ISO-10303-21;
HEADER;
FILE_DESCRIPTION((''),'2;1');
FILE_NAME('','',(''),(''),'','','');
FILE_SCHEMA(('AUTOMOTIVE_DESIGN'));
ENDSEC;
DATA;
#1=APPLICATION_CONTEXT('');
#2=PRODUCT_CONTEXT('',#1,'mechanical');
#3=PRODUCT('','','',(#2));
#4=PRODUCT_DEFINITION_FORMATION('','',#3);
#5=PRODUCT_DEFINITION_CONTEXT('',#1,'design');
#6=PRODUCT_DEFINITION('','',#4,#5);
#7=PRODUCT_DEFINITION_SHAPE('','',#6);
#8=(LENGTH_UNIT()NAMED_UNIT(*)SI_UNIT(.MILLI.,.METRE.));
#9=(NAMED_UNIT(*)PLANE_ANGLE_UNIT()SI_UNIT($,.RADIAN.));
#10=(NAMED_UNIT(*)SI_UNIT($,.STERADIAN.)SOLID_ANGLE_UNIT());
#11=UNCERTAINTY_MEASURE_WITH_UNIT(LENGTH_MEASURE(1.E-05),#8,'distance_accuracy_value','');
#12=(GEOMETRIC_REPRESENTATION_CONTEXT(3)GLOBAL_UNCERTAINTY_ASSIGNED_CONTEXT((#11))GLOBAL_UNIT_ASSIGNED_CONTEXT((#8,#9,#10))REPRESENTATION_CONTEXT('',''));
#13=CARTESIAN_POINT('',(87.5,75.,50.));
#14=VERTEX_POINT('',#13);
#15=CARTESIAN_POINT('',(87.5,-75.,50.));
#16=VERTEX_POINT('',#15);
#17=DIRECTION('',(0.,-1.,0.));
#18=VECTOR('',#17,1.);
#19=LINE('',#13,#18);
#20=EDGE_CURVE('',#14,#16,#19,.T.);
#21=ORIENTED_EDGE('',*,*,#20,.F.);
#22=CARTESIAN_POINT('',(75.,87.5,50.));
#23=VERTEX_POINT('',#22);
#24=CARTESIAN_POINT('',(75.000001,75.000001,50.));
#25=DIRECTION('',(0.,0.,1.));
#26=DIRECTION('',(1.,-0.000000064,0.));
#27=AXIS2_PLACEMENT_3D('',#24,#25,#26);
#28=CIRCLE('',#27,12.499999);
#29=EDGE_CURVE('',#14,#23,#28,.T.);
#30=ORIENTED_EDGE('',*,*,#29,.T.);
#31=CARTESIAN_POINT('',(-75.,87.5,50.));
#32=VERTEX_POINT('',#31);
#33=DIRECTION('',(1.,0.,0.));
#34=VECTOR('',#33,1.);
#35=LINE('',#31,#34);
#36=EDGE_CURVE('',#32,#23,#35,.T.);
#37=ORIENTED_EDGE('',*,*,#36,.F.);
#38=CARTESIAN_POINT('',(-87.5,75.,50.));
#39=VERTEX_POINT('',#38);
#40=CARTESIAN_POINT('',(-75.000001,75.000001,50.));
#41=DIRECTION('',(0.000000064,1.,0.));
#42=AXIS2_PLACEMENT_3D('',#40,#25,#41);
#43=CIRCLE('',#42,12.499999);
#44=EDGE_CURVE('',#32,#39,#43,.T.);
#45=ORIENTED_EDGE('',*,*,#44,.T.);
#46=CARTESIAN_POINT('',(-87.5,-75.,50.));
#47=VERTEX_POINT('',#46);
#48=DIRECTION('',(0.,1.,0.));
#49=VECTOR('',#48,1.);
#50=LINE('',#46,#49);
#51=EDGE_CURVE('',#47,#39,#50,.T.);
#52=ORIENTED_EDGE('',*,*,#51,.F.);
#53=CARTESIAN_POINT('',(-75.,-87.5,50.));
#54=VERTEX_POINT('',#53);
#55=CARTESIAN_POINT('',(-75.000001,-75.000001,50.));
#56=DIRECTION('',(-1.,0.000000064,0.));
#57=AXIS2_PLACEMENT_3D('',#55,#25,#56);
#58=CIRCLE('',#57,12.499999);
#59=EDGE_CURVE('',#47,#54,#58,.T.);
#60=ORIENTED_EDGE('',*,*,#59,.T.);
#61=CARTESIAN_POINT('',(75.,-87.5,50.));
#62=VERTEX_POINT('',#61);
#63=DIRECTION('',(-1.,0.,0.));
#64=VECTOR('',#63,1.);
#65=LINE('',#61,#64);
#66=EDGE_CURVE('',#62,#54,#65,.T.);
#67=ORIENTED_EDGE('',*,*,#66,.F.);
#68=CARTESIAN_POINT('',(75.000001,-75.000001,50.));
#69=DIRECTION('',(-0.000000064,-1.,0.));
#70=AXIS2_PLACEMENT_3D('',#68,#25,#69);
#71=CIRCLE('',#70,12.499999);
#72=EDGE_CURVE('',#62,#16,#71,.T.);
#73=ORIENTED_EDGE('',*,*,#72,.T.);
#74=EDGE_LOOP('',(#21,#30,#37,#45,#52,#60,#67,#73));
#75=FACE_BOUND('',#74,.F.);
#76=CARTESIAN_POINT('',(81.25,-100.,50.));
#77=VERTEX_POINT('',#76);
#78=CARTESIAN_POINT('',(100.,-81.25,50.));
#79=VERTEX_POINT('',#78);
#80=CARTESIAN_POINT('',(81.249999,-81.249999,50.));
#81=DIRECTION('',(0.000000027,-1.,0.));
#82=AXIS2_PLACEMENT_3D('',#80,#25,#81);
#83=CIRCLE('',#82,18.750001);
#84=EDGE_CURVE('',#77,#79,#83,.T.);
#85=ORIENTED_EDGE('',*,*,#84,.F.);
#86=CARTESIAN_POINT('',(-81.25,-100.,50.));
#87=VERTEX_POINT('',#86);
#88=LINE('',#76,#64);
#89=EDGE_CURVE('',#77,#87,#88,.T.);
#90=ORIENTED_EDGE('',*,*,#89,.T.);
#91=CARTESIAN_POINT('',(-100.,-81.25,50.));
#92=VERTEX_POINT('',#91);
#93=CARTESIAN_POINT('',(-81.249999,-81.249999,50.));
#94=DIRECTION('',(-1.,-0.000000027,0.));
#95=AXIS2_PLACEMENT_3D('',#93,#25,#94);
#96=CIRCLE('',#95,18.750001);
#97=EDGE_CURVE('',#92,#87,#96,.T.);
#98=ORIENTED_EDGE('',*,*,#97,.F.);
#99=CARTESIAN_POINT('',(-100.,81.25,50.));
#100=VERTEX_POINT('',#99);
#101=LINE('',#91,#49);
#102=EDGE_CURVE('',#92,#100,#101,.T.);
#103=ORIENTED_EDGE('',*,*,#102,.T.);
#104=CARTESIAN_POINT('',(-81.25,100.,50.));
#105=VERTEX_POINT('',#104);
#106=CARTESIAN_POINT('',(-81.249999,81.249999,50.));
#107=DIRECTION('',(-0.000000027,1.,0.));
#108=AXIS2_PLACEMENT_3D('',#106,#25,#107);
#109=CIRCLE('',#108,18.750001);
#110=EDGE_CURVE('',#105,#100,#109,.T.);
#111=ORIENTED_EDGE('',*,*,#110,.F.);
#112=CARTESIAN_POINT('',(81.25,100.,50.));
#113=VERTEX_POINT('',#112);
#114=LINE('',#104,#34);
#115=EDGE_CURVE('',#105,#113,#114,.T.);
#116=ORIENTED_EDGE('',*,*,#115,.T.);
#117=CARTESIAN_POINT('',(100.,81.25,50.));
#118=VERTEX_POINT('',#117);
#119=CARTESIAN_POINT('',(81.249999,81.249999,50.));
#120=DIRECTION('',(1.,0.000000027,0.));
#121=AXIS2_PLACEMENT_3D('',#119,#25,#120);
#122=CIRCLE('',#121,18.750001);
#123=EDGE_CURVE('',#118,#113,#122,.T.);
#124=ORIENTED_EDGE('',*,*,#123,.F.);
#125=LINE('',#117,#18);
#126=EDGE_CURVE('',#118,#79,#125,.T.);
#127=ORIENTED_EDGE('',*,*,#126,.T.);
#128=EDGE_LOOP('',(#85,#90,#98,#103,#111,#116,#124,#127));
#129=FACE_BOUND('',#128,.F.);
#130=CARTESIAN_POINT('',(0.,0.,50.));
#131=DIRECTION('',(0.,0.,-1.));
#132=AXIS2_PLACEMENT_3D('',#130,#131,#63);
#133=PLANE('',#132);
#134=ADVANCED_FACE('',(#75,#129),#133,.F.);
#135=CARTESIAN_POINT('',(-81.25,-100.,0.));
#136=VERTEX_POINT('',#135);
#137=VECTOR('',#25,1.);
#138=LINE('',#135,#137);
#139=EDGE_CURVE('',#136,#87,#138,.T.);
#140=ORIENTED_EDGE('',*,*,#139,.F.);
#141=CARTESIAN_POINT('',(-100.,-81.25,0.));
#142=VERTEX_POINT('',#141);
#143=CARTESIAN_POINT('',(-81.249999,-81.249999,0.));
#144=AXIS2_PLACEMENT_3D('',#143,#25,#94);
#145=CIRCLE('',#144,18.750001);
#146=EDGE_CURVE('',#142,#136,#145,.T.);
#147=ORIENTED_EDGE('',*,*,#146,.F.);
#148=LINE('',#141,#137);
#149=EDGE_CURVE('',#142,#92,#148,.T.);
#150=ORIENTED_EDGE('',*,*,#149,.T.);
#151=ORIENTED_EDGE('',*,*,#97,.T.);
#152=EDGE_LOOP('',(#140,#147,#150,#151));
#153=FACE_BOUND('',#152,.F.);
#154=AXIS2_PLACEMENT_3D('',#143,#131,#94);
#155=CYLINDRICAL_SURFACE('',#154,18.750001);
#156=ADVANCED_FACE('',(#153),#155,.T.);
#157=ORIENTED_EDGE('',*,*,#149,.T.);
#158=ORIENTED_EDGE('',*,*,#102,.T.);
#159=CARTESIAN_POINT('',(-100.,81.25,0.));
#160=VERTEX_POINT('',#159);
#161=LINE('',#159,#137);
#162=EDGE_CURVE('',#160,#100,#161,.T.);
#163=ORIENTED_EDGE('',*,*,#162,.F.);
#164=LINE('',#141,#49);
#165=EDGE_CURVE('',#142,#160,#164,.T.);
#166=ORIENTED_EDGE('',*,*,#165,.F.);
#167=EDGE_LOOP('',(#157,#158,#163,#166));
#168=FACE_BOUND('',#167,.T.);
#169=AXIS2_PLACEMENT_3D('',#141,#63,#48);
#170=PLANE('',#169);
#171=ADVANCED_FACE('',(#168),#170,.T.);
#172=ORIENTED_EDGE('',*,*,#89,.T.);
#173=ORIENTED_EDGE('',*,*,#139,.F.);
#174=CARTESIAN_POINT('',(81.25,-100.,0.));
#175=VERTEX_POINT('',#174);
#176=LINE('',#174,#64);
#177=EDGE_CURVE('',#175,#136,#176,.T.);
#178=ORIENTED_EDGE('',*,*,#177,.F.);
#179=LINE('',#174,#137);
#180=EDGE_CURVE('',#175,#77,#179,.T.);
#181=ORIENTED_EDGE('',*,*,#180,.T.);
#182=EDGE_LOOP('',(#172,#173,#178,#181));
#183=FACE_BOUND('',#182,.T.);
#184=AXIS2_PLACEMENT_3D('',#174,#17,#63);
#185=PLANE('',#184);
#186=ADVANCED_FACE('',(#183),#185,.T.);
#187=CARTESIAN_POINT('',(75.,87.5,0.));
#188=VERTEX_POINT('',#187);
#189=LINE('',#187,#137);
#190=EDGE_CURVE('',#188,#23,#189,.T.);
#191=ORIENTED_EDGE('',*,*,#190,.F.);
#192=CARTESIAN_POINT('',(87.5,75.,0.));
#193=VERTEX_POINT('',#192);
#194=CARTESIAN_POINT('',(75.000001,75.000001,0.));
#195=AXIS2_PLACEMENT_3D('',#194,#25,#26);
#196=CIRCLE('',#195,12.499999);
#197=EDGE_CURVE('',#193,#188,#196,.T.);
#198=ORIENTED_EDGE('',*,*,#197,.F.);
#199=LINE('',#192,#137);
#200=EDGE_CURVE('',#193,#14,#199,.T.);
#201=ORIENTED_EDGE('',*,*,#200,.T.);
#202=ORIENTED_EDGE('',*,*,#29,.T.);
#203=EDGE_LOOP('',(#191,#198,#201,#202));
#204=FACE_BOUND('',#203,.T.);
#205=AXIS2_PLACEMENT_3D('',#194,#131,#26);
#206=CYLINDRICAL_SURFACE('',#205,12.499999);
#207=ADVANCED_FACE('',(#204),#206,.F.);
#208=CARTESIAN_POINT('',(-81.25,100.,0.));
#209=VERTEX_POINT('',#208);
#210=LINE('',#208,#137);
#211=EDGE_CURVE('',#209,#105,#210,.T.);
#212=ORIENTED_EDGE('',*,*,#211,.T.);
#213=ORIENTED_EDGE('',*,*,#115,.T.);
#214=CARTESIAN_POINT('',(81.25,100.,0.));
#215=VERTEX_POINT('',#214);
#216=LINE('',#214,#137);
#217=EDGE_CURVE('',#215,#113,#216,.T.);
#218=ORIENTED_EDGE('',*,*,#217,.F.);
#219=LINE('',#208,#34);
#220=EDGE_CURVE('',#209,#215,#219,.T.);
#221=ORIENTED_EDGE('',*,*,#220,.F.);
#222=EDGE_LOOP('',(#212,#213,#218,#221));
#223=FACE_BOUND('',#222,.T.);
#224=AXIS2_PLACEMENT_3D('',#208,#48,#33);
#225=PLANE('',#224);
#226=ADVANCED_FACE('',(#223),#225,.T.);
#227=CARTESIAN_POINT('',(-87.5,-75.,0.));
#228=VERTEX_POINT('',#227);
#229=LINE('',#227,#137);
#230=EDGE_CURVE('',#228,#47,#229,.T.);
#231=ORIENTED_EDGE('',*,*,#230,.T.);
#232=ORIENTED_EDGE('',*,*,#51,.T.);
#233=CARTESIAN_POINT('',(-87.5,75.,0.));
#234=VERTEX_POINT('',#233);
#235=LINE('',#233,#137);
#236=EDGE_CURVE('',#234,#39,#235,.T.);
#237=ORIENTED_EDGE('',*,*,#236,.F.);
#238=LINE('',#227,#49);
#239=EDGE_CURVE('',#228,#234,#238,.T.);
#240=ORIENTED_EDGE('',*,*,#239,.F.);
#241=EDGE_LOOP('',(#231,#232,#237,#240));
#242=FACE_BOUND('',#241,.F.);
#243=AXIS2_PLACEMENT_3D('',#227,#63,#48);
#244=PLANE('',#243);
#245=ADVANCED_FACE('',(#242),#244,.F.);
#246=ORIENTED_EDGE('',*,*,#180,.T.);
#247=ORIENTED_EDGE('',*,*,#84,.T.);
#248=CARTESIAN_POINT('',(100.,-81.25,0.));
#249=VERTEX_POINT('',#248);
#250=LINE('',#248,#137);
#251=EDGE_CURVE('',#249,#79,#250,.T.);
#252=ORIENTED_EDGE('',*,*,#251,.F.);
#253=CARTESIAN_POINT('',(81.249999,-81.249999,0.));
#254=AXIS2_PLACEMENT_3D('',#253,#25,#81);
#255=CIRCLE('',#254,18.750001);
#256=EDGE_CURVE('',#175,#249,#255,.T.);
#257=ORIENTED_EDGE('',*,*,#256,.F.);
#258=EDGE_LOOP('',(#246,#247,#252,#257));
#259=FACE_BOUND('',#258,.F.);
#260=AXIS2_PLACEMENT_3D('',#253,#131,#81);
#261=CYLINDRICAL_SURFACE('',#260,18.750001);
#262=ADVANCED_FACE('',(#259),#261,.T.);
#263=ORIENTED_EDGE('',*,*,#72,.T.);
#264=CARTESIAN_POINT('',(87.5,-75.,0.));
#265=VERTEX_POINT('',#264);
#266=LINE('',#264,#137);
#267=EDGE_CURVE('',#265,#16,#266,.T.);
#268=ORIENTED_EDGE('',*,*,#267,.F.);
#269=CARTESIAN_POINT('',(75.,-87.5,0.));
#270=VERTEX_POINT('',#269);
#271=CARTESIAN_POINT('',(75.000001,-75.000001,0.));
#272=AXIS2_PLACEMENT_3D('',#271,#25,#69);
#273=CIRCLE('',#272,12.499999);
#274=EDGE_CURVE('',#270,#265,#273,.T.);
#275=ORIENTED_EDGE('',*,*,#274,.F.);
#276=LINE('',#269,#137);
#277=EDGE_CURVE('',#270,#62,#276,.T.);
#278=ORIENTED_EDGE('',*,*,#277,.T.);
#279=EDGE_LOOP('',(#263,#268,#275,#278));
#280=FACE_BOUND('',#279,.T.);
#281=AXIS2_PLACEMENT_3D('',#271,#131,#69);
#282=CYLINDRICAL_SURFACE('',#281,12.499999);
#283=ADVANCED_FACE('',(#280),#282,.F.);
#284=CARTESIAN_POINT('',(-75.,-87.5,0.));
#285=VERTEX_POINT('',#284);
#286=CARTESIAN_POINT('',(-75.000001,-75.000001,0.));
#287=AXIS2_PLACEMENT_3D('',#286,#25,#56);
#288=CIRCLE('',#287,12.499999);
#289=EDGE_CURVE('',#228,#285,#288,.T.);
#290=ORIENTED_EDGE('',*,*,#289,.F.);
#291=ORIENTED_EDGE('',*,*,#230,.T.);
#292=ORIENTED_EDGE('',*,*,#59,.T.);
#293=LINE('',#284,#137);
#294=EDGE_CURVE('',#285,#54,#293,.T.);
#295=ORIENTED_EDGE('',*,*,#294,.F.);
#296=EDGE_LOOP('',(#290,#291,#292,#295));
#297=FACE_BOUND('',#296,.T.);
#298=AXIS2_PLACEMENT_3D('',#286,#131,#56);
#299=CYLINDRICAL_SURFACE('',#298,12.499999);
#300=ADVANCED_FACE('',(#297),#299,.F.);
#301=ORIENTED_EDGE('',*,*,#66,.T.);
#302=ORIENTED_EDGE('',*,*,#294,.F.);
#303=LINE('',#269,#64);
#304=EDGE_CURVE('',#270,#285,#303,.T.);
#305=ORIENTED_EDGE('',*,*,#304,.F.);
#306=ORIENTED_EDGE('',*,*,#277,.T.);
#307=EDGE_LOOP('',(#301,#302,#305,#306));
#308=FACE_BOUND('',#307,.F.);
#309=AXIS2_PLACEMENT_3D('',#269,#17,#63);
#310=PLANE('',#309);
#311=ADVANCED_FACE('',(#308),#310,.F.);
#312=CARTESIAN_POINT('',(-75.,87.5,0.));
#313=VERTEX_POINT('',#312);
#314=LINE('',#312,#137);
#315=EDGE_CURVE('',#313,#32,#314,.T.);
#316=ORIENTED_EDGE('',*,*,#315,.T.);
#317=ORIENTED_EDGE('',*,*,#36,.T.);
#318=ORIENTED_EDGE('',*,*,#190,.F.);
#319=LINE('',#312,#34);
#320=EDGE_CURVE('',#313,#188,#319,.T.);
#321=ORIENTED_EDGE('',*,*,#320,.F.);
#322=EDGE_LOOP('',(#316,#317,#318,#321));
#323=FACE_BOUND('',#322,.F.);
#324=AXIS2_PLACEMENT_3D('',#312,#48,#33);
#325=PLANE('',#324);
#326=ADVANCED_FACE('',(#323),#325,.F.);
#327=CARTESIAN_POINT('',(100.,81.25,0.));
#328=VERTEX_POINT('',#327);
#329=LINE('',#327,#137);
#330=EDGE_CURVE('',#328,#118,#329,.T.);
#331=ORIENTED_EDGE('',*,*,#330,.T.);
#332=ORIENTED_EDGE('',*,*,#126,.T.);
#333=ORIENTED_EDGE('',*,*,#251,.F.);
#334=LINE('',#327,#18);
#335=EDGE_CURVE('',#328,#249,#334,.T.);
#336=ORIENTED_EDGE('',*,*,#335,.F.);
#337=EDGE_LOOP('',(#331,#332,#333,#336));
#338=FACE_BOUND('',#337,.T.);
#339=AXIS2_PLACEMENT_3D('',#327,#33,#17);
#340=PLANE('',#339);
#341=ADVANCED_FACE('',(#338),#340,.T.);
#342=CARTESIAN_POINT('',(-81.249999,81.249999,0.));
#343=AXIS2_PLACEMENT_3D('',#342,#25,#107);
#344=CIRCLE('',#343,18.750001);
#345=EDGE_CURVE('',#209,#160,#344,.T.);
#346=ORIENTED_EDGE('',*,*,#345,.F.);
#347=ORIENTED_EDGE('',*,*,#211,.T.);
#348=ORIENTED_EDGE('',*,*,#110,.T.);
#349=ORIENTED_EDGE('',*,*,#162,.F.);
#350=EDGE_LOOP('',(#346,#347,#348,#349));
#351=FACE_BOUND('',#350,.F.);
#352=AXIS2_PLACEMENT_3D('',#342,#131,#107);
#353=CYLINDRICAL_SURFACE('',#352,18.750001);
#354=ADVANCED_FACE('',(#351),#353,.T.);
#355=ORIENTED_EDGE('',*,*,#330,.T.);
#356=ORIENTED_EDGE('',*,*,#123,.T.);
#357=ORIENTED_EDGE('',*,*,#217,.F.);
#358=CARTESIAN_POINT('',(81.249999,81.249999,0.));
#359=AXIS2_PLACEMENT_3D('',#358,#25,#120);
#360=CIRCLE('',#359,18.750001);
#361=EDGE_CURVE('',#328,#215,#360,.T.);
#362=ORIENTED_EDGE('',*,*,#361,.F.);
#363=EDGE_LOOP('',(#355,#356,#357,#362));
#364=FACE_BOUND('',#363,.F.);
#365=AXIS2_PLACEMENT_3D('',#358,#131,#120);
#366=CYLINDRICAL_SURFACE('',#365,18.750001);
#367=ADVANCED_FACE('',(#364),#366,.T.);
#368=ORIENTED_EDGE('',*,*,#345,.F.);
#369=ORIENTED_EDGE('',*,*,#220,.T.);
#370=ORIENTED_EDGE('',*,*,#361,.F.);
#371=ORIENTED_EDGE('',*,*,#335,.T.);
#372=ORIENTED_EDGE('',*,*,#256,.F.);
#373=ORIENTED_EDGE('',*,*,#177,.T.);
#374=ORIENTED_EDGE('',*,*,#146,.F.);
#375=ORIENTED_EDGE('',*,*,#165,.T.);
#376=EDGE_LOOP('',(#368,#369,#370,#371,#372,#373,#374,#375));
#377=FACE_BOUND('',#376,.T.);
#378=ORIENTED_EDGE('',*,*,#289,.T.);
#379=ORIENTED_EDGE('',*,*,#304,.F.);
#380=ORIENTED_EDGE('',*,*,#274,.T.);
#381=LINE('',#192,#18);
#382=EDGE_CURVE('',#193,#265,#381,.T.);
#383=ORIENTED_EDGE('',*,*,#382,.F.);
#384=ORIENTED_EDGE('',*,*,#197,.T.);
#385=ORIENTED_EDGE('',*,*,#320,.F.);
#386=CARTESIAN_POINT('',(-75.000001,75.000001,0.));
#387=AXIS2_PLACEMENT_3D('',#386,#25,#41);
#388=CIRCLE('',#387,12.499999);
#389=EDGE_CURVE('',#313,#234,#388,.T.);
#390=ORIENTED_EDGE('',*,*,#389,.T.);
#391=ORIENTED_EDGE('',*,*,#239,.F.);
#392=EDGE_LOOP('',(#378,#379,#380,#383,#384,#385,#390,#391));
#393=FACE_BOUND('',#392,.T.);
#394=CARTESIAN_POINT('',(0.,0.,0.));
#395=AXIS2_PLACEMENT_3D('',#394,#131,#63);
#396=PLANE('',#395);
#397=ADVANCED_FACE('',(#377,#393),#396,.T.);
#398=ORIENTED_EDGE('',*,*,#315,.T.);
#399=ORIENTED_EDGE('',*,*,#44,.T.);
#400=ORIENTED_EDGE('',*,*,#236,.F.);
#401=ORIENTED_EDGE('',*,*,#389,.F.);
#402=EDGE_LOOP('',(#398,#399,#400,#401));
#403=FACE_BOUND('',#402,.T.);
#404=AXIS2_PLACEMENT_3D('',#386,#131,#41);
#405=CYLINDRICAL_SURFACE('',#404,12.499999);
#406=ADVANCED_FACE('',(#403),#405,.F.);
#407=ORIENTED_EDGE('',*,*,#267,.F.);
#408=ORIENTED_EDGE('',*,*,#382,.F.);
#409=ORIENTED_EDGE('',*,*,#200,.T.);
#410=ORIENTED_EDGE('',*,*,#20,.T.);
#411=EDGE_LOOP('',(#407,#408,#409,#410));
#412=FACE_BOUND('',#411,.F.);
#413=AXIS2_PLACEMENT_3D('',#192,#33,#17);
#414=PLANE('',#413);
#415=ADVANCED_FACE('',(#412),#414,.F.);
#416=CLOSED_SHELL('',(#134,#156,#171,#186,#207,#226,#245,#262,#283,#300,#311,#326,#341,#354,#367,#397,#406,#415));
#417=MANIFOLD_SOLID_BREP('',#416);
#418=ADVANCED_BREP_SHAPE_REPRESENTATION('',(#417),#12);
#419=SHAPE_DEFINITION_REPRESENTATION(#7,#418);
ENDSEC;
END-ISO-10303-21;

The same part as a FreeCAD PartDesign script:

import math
import FreeCAD as App
import Part
import Sketcher

doc = App.newDocument("Part")
params = doc.addObject("Spreadsheet::Sheet", "Params")
for row, (alias, value) in enumerate([
    ("sketch1_radius", "12.499999 mm"),
    ("sketch1_width", "150 mm"),
    ("sketch1_radius2", "18.750001 mm"),
    ("sketch1_width2", "162.5 mm"),
    ("pad1_length", "50 mm"),
], start=1):
    params.set(f"A{row}", alias)
    params.set(f"B{row}", "=" + value)
    params.setAlias(f"B{row}", alias)

body = doc.addObject("PartDesign::Body", "Body")

sketch1 = body.newObject("Sketcher::SketchObject", "Sketch")
sketch1.AttachmentSupport = (doc.getObject("XY_Plane"), [""])
sketch1.MapMode = "FlatFace"
sketch1.addGeometry([
    Part.LineSegment(App.Vector(81.25, 100, 0), App.Vector(-81.25, 100, 0)),
    Part.ArcOfCircle(Part.Circle(App.Vector(-81.249999, 81.249999, 0), App.Vector(0, 0, 1), 18.750001), math.radians(90.000002), math.radians(179.999998)),
    Part.LineSegment(App.Vector(-100, 81.25, 0), App.Vector(-100, -81.25, 0)),
    Part.ArcOfCircle(Part.Circle(App.Vector(-81.249999, -81.249999, 0), App.Vector(0, 0, 1), 18.750001), math.radians(-179.999998), math.radians(-90.000002)),
    Part.LineSegment(App.Vector(-81.25, -100, 0), App.Vector(81.25, -100, 0)),
    Part.ArcOfCircle(Part.Circle(App.Vector(81.249999, -81.249999, 0), App.Vector(0, 0, 1), 18.750001), math.radians(-89.999998), math.radians(-0.000002)),
    Part.LineSegment(App.Vector(100, -81.25, 0), App.Vector(100, 81.25, 0)),
    Part.ArcOfCircle(Part.Circle(App.Vector(81.249999, 81.249999, 0), App.Vector(0, 0, 1), 18.750001), math.radians(0.000002), math.radians(89.999998)),
    Part.LineSegment(App.Vector(-75, 87.5, 0), App.Vector(75, 87.5, 0)),
    Part.ArcOfCircle(Part.Circle(App.Vector(75.000001, 75.000001, 0), App.Vector(0, 0, 1), 12.499999), math.radians(-0.000004), math.radians(90.000004)),
    Part.LineSegment(App.Vector(87.5, 75, 0), App.Vector(87.5, -75, 0)),
    Part.ArcOfCircle(Part.Circle(App.Vector(75.000001, -75.000001, 0), App.Vector(0, 0, 1), 12.499999), math.radians(-90.000004), math.radians(0.000004)),
    Part.LineSegment(App.Vector(75, -87.5, 0), App.Vector(-75, -87.5, 0)),
    Part.ArcOfCircle(Part.Circle(App.Vector(-75.000001, -75.000001, 0), App.Vector(0, 0, 1), 12.499999), math.radians(179.999996), math.radians(270.000004)),
    Part.LineSegment(App.Vector(-87.5, -75, 0), App.Vector(-87.5, 75, 0)),
    Part.ArcOfCircle(Part.Circle(App.Vector(-75.000001, 75.000001, 0), App.Vector(0, 0, 1), 12.499999), math.radians(89.999996), math.radians(180.000004)),
], False)
sketch1.addConstraint([
    Sketcher.Constraint("Tangent", 0, 2, 1, 1),
    Sketcher.Constraint("Tangent", 1, 2, 2, 1),
    Sketcher.Constraint("Tangent", 2, 2, 3, 1),
    Sketcher.Constraint("Tangent", 3, 2, 4, 1),
    Sketcher.Constraint("Tangent", 4, 2, 5, 1),
    Sketcher.Constraint("Tangent", 5, 2, 6, 1),
    Sketcher.Constraint("Tangent", 6, 2, 7, 1),
    Sketcher.Constraint("Tangent", 7, 2, 0, 1),
    Sketcher.Constraint("Tangent", 8, 2, 9, 2),
    Sketcher.Constraint("Tangent", 9, 1, 10, 1),
    Sketcher.Constraint("Tangent", 10, 2, 11, 2),
    Sketcher.Constraint("Tangent", 11, 1, 12, 1),
    Sketcher.Constraint("Tangent", 12, 2, 13, 2),
    Sketcher.Constraint("Tangent", 13, 1, 14, 1),
    Sketcher.Constraint("Tangent", 14, 2, 15, 2),
    Sketcher.Constraint("Tangent", 15, 1, 8, 1),
    Sketcher.Constraint("Horizontal", 0),
    Sketcher.Constraint("Vertical", 2),
    Sketcher.Constraint("Horizontal", 4),
    Sketcher.Constraint("Vertical", 6),
    Sketcher.Constraint("Horizontal", 8),
    Sketcher.Constraint("Vertical", 10),
    Sketcher.Constraint("Horizontal", 12),
    Sketcher.Constraint("Vertical", 14),
    Sketcher.Constraint("Equal", 1, 3),
    Sketcher.Constraint("Equal", 3, 5),
    Sketcher.Constraint("Equal", 5, 7),
    Sketcher.Constraint("Equal", 9, 11),
    Sketcher.Constraint("Equal", 11, 13),
    Sketcher.Constraint("Equal", 13, 15),
    Sketcher.Constraint("Symmetric", 1, 3, 5, 3, -1, 1),
    Sketcher.Constraint("Symmetric", 9, 3, 13, 3, -1, 1),
    Sketcher.Constraint("Equal", 4, 2),
    Sketcher.Constraint("Equal", 12, 10),
    Sketcher.Constraint("Radius", 9, 12.499999),
    Sketcher.Constraint("DistanceX", 8, 1, 8, 2, 150.0),
    Sketcher.Constraint("Radius", 1, 18.750001),
    Sketcher.Constraint("DistanceX", 0, 2, 0, 1, 162.5),
])
sketch1.setExpression("Constraints[34]", "Params.sketch1_radius")
sketch1.setExpression("Constraints[35]", "Params.sketch1_width")
sketch1.setExpression("Constraints[36]", "Params.sketch1_radius2")
sketch1.setExpression("Constraints[37]", "Params.sketch1_width2")
pad1 = body.newObject("PartDesign::Pad", "Pad")
pad1.Profile = sketch1
pad1.setExpression("Length", "Params.pad1_length")

doc.recompute()
